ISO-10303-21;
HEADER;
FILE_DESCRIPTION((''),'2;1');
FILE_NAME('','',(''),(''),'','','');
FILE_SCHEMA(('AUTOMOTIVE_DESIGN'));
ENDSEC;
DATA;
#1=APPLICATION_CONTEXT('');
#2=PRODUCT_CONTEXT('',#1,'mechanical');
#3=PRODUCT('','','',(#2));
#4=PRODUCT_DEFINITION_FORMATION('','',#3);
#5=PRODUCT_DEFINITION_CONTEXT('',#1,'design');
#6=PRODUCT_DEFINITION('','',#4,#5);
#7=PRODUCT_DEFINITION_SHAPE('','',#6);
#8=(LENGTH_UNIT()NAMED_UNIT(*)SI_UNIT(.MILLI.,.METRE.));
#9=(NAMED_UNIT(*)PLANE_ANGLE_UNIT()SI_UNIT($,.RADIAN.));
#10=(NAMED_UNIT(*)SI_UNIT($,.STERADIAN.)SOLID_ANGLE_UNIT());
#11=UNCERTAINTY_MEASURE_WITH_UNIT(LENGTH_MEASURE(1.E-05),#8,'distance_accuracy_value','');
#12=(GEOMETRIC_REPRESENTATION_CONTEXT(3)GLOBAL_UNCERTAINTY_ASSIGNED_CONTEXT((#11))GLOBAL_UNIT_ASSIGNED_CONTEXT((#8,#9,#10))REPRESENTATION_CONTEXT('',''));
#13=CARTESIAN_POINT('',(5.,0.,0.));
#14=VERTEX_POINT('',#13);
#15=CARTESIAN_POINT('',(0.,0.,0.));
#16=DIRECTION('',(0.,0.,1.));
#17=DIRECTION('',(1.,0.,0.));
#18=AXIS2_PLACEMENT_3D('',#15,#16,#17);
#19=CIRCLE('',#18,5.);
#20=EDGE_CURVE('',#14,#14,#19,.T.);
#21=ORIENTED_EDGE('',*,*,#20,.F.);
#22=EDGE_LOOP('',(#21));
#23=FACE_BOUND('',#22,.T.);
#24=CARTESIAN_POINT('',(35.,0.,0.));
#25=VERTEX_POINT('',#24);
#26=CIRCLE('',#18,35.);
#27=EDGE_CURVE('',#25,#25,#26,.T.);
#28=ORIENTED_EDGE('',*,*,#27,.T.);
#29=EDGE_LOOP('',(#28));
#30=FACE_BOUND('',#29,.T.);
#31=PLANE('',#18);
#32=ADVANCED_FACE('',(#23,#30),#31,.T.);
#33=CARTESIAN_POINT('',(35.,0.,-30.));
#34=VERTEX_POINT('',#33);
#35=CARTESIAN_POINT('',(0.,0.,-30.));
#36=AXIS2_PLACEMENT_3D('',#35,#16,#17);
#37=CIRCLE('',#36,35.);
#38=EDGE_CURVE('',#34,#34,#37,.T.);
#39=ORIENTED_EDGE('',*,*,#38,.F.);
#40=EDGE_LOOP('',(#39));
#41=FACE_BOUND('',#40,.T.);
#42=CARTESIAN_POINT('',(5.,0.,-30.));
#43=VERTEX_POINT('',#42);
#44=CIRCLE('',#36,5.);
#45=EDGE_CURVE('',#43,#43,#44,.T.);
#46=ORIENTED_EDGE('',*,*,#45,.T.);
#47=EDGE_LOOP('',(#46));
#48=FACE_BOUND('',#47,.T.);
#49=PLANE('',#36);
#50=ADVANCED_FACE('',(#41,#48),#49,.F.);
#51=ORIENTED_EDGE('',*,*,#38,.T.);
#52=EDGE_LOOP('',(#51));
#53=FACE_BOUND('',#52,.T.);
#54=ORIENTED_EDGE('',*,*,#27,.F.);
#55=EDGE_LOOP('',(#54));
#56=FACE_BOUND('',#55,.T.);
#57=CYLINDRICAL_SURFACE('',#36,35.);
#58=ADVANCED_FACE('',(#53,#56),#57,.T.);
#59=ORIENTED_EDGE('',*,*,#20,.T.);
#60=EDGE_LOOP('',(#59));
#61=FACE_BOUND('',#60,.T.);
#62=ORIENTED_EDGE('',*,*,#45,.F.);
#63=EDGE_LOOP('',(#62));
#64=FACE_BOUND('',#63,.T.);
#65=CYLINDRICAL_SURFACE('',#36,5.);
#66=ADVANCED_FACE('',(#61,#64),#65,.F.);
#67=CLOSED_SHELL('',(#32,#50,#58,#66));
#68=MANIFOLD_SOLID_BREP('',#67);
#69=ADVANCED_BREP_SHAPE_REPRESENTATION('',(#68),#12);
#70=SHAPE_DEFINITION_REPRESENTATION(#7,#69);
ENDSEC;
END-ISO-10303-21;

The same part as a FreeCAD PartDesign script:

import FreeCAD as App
import Part
import Sketcher

V = App.Vector

doc = App.newDocument("Part")
body = doc.addObject("PartDesign::Body", "Body")

# Sketch on XY plane
sketch1 = doc.addObject("Sketcher::SketchObject", "Sketch")
body.addObject(sketch1)
sketch1.AttachmentSupport = (doc.XY_Plane, [""])
sketch1.MapMode = "FlatFace"
sketch1.addGeometry(Part.Circle(V(0, 0, 0), V(0, 0, 1), 35), False)
sketch1.addConstraint([
    Sketcher.Constraint("Coincident", 0, 3, -1, 1),
    Sketcher.Constraint("Diameter", 0, 70.0),
])
pad1 = doc.addObject("PartDesign::Pad", "Pad")
body.addObject(pad1)
pad1.Profile = sketch1
pad1.Length = 30
pad1.Reversed = True

# Sketch on XY plane
sketch2 = doc.addObject("Sketcher::SketchObject", "Sketch001")
body.addObject(sketch2)
sketch2.AttachmentSupport = (doc.XY_Plane, [""])
sketch2.MapMode = "FlatFace"
sketch2.addGeometry(Part.Circle(V(0, 0, 0), V(0, 0, 1), 5), False)
sketch2.addConstraint([
    Sketcher.Constraint("Coincident", 0, 3, -1, 1),
    Sketcher.Constraint("Diameter", 0, 10.0),
])
pocket1 = doc.addObject("PartDesign::Pocket", "Pocket")
body.addObject(pocket1)
pocket1.Profile = sketch2
pocket1.Length = 30

doc.recompute()
